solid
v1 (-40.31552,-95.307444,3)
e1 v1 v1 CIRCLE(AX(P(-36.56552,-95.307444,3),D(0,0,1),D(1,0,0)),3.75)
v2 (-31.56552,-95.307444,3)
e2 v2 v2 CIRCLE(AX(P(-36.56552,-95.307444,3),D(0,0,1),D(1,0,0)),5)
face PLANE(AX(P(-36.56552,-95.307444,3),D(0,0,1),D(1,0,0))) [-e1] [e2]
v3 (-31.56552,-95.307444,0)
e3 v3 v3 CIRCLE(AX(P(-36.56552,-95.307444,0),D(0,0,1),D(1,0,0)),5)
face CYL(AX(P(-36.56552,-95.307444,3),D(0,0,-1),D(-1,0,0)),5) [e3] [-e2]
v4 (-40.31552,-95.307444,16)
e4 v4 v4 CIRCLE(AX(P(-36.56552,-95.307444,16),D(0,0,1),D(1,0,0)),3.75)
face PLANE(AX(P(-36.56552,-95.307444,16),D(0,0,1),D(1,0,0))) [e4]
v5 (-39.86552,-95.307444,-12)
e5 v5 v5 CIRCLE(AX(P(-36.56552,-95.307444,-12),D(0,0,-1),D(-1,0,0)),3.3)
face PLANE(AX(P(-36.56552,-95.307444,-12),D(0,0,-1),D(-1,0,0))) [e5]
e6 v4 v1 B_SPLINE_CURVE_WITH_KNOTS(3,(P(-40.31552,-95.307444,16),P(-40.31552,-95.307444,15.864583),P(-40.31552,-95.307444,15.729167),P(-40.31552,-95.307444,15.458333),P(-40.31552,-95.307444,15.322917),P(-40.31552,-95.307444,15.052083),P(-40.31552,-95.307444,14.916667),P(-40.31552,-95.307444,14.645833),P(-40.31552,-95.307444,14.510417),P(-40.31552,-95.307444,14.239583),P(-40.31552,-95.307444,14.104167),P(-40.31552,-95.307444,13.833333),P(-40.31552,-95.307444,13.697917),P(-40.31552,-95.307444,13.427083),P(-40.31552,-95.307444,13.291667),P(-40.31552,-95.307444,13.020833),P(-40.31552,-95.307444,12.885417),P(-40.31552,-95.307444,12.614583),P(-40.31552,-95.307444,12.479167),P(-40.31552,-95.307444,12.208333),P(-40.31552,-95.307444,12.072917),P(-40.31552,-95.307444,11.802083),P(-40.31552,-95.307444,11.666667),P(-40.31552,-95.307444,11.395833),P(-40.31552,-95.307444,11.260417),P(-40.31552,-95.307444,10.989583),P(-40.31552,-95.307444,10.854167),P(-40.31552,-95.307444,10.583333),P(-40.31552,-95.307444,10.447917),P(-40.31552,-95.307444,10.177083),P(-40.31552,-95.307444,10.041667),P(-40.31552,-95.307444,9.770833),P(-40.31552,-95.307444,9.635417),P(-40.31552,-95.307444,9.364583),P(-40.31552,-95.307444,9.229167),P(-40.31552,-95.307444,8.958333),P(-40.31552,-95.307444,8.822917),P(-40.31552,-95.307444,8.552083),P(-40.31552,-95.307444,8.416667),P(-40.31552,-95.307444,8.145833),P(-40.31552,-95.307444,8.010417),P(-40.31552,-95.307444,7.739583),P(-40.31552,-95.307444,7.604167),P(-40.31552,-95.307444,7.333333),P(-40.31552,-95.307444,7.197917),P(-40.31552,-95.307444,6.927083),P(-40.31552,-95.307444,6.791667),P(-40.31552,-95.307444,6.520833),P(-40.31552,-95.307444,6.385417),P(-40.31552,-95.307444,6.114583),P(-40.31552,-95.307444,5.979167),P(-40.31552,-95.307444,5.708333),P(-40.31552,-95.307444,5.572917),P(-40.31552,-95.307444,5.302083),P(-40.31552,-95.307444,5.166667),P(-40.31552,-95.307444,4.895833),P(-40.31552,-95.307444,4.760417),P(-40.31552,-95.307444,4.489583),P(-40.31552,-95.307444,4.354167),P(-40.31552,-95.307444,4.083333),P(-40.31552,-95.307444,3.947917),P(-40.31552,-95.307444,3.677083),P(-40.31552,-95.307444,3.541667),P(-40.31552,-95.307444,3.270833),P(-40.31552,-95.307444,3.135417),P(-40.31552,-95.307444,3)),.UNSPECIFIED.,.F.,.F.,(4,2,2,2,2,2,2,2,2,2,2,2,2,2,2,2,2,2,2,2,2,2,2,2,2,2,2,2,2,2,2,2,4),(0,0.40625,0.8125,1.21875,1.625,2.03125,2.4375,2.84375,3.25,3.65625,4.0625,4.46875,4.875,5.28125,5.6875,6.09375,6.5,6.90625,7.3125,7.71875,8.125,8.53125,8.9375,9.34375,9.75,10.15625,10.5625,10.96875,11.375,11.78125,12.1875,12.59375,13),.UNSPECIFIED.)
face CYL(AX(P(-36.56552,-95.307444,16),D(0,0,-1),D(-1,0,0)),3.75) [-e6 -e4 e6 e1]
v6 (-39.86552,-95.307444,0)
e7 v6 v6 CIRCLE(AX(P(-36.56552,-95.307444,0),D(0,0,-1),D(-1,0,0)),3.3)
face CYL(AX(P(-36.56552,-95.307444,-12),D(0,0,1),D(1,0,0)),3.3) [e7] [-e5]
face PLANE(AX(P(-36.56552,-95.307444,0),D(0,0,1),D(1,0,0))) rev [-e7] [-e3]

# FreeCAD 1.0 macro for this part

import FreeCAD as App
import Part
import Sketcher
Q = App.Units.Quantity

doc = App.newDocument("Part")
body = doc.addObject("PartDesign::Body", "Body")

# Sketch on XY plane
sketch1 = body.newObject("Sketcher::SketchObject", "Sketch")
sketch1.AttachmentSupport = (doc.getObject("XY_Plane"), [""])
sketch1.MapMode = "FlatFace"
sketch1.addGeometry(Part.Circle(App.Vector(-37, -95, 0), App.Vector(0, 0, 1), 5), False)
sketch1.addConstraint(Sketcher.Constraint("Diameter", 0, Q("10 mm")))
sketch1.addConstraint(Sketcher.Constraint("DistanceX", 0, 3, -1, 1, Q("36.56552 mm")))
sketch1.addConstraint(Sketcher.Constraint("DistanceY", 0, 3, -1, 1, Q("95.307444 mm")))
pad1 = body.newObject("PartDesign::Pad", "Pad")
pad1.Profile = sketch1
pad1.Length = 3

# Sketch on XY plane
sketch2 = body.newObject("Sketcher::SketchObject", "Sketch001")
sketch2.AttachmentSupport = (doc.getObject("XY_Plane"), [""])
sketch2.MapMode = "FlatFace"
sketch2.addGeometry(Part.Circle(App.Vector(-36.6, -95.3, 0), App.Vector(0, 0, 1), 3.3), False)
sketch2.addConstraint(Sketcher.Constraint("Diameter", 0, Q("6.6 mm")))
sketch2.addConstraint(Sketcher.Constraint("DistanceX", 0, 3, -1, 1, Q("36.56552 mm")))
sketch2.addConstraint(Sketcher.Constraint("DistanceY", 0, 3, -1, 1, Q("95.307444 mm")))
pad2 = body.newObject("PartDesign::Pad", "Pad001")
pad2.Profile = sketch2
pad2.Length = 12
pad2.Reversed = True

# Sketch on XY plane
sketch3 = body.newObject("Sketcher::SketchObject", "Sketch002")
sketch3.AttachmentSupport = (doc.getObject("XY_Plane"), [""])
sketch3.MapMode = "FlatFace"
sketch3.AttachmentOffset = App.Placement(App.Vector(0, 0, 3), App.Rotation())
sketch3.addGeometry(Part.Circle(App.Vector(-36.6, -95.3, 0), App.Vector(0, 0, 1), 3.8), False)
sketch3.addConstraint(Sketcher.Constraint("Diameter", 0, Q("7.5 mm")))
sketch3.addConstraint(Sketcher.Constraint("DistanceX", 0, 3, -1, 1, Q("36.56552 mm")))
sketch3.addConstraint(Sketcher.Constraint("DistanceY", 0, 3, -1, 1, Q("95.307444 mm")))
pad3 = body.newObject("PartDesign::Pad", "Pad002")
pad3.Profile = sketch3
pad3.Length = 13

doc.recompute()
